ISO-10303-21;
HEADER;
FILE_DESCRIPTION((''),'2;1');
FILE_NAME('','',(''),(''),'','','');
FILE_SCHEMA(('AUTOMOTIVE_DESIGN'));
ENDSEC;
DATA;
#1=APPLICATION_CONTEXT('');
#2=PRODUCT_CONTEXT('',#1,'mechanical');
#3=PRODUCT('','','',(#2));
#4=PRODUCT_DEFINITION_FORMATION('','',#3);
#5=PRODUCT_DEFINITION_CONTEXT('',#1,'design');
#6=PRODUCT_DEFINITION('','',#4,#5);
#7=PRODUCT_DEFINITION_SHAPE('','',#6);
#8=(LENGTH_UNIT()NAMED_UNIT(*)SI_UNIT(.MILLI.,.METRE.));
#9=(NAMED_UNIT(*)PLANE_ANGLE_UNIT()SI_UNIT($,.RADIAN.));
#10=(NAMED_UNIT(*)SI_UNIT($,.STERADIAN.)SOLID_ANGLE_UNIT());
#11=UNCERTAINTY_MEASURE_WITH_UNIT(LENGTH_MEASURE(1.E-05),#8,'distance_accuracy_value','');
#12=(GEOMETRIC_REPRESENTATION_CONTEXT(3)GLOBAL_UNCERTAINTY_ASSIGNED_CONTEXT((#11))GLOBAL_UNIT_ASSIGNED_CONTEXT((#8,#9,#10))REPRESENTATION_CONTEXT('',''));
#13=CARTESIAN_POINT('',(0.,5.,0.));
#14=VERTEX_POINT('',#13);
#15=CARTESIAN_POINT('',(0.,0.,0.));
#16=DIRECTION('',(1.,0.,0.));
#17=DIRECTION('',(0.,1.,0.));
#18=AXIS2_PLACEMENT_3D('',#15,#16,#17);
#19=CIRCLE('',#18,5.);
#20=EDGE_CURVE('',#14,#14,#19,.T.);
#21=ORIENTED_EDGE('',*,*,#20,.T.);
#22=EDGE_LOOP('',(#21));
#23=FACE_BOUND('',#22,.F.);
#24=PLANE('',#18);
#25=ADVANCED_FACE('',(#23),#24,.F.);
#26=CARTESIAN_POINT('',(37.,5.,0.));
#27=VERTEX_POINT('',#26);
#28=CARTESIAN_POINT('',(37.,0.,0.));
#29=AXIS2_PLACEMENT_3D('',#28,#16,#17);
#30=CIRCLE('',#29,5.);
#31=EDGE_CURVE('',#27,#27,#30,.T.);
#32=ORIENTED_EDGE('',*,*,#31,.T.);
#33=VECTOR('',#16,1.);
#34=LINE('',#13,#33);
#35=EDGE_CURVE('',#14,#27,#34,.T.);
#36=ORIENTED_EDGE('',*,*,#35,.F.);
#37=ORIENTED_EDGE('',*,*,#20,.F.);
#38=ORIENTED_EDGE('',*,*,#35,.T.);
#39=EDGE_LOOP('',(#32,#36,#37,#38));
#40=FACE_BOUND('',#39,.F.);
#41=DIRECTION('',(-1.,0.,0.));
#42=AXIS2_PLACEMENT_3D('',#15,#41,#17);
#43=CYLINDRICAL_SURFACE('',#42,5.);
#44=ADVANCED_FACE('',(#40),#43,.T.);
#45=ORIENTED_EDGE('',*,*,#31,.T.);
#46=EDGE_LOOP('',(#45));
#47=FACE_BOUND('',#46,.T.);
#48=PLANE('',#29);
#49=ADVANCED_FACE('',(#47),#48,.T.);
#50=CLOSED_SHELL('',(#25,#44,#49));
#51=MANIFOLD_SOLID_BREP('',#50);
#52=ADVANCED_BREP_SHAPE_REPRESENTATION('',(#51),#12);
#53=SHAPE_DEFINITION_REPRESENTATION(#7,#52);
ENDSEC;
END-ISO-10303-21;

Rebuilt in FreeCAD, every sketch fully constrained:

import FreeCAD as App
import Part
import Sketcher
Q = App.Units.Quantity

doc = App.newDocument("Part")
params = doc.addObject("Spreadsheet::Sheet", "Params")
for row, (alias, value) in enumerate([
    ("sketch1_diameter", "10 mm"),
    ("pad1_length", "37 mm"),
], start=1):
    params.set(f"A{row}", alias)
    params.set(f"B{row}", "=" + value)
    params.setAlias(f"B{row}", alias)

body = doc.addObject("PartDesign::Body", "Body")

sketch1 = body.newObject("Sketcher::SketchObject", "Sketch")
sketch1.AttachmentSupport = (doc.getObject("YZ_Plane"), [""])
sketch1.MapMode = "FlatFace"
sketch1.addGeometry(Part.Circle(App.Vector(0, 0, 0), App.Vector(0, 0, 1), 5), False)
sketch1.addConstraint([
    Sketcher.Constraint("Coincident", 0, 3, -1, 1),
    Sketcher.Constraint("Diameter", 0, Q("10 mm")),
])
sketch1.setExpression("Constraints[1]", "Params.sketch1_diameter")
pad1 = body.newObject("PartDesign::Pad", "Pad")
pad1.Profile = sketch1
pad1.setExpression("Length", "Params.pad1_length")

doc.recompute()
